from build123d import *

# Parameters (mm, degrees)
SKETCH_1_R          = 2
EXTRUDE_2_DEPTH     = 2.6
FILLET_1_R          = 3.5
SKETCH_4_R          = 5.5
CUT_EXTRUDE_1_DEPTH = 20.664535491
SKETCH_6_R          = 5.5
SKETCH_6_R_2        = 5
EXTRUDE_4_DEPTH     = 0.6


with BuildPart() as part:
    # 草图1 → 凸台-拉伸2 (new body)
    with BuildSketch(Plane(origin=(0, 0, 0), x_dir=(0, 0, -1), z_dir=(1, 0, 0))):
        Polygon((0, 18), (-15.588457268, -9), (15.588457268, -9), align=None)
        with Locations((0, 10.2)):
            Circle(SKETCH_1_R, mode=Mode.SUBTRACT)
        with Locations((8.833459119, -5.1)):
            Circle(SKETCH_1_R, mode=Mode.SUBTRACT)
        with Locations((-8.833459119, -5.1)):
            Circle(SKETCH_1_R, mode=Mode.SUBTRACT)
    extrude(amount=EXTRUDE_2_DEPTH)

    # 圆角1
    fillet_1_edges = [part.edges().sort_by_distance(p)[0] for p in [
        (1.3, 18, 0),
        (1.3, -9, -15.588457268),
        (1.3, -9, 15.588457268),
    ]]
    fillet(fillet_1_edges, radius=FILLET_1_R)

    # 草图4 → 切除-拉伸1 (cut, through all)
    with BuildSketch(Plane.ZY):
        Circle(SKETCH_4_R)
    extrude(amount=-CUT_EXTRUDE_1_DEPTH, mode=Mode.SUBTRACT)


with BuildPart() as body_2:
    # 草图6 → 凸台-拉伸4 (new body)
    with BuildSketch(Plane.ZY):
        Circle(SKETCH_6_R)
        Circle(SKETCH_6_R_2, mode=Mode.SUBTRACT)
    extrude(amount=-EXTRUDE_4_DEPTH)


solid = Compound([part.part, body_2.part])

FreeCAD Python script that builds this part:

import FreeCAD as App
import Part
import Sketcher
Q = App.Units.Quantity


def edges_at(feature, points):
    """Names of the edges that pass closest to the given points."""
    edges = feature.Shape.Edges
    near = lambda p: min(range(len(edges)), key=lambda i: edges[i].distToShape(Part.Vertex(*p))[0])
    return sorted({f"Edge{near(p) + 1}" for p in points})

doc = App.newDocument("Part")
body = doc.addObject("PartDesign::Body", "Body")

# Sketch on YZ plane
sketch1 = body.newObject("Sketcher::SketchObject", "Sketch")
sketch1.AttachmentSupport = (doc.getObject("YZ_Plane"), [""])
sketch1.MapMode = "FlatFace"
sketch1.addGeometry([
    Part.LineSegment(App.Vector(18, 0, 0), App.Vector(-9, 15.6, 0)),  # 0
    Part.LineSegment(App.Vector(-9, 15.6, 0), App.Vector(-9, -15.6, 0)),  # 1
    Part.LineSegment(App.Vector(-9, -15.6, 0), App.Vector(18, 0, 0)),  # 2
    Part.Circle(App.Vector(-5.1, 8.8, 0), App.Vector(0, 0, 1), 2),  # 3
    Part.Circle(App.Vector(-5.1, -8.8, 0), App.Vector(0, 0, 1), 2),  # 4
    Part.Circle(App.Vector(10.2, 0, 0), App.Vector(0, 0, 1), 2),  # 5
], False)
sketch1.addConstraint([
    Sketcher.Constraint("Coincident", 0, 2, 1, 1),
    Sketcher.Constraint("Coincident", 1, 2, 2, 1),
    Sketcher.Constraint("Coincident", 2, 2, 0, 1),
    Sketcher.Constraint("Vertical", 1),
    Sketcher.Constraint("Equal", 3, 4),
    Sketcher.Constraint("Equal", 4, 5),
    Sketcher.Constraint("Symmetric", 3, 3, 4, 3, -1),
    Sketcher.Constraint("PointOnObject", 5, 3, -1),
    Sketcher.Constraint("PointOnObject", 2, 2, -1),
    Sketcher.Constraint("Equal", 0, 2),
    Sketcher.Constraint("Diameter", 3, Q("4 mm")),
    Sketcher.Constraint("Angle", 0, Q("150 deg")),
    Sketcher.Constraint("DistanceX", 0, 2, -1, 1, Q("9 mm")),
    Sketcher.Constraint("DistanceX", -1, 1, 2, 2, Q("18 mm")),
    Sketcher.Constraint("DistanceX", 3, 3, -1, 1, Q("5.1 mm")),
    Sketcher.Constraint("DistanceX", -1, 1, 5, 3, Q("10.2 mm")),
    Sketcher.Constraint("DistanceY", 3, 3, 0, 2, Q("6.754998 mm")),
])
pad1 = body.newObject("PartDesign::Pad", "Pad")
pad1.Profile = sketch1
pad1.Length = 2.6
doc.recompute()

fillet = body.newObject("PartDesign::Fillet", "Fillet")
fillet.Base = (pad1, edges_at(pad1, [(1.3, 18, 0), (1.3, -9, -15.588), (1.3, -9, 15.588)]))
fillet.Radius = 3.5

# Sketch on YZ plane
sketch2 = body.newObject("Sketcher::SketchObject", "Sketch001")
sketch2.AttachmentSupport = (doc.getObject("YZ_Plane"), [""])
sketch2.MapMode = "FlatFace"
sketch2.addGeometry(Part.Circle(App.Vector(0, 0, 0), App.Vector(0, 0, 1), 6), False)
sketch2.addConstraint([
    Sketcher.Constraint("Coincident", 0, 3, -1, 1),
    Sketcher.Constraint("Diameter", 0, Q("11 mm")),
])
pocket1 = body.newObject("PartDesign::Pocket", "Pocket")
pocket1.Profile = sketch2
pocket1.Type = "ThroughAll"
pocket1.Reversed = True
body2 = doc.addObject("PartDesign::Body", "Body001")

# Sketch on YZ plane
sketch3 = body2.newObject("Sketcher::SketchObject", "Sketch002")
sketch3.AttachmentSupport = (doc.getObject("YZ_Plane001"), [""])
sketch3.MapMode = "FlatFace"
sketch3.addGeometry([
    Part.Circle(App.Vector(0, 0, 0), App.Vector(0, 0, 1), 6),
    Part.Circle(App.Vector(0, 0, 0), App.Vector(0, 0, 1), 5),
], False)
sketch3.addConstraint([
    Sketcher.Constraint("Coincident", 0, 3, -1, 1),
    Sketcher.Constraint("Coincident", 1, 3, -1, 1),
    Sketcher.Constraint("Diameter", 0, Q("11 mm")),
    Sketcher.Constraint("Diameter", 1, Q("10 mm")),
])
pad2 = body2.newObject("PartDesign::Pad", "Pad001")
pad2.Profile = sketch3
pad2.Length = 0.6

doc.recompute()
